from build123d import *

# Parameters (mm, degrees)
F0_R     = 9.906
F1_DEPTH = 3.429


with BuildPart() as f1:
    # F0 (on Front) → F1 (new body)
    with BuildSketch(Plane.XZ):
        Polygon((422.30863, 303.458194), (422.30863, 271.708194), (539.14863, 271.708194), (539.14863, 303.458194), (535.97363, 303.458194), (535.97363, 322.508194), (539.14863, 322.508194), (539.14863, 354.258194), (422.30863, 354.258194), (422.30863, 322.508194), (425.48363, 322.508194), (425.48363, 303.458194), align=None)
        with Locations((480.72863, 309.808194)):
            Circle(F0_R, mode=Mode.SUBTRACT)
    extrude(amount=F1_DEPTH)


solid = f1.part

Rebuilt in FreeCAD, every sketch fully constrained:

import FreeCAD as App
import Part
import Sketcher

V = App.Vector
Q = App.Units.Quantity

doc = App.newDocument("Part")
body = doc.addObject("PartDesign::Body", "Body")

# Sketch on XZ plane
sketch1 = body.newObject("Sketcher::SketchObject", "Sketch")
sketch1.AttachmentSupport = (doc.getObject("XZ_Plane"), [""])
sketch1.MapMode = "FlatFace"
sketch1.addGeometry([
    Part.LineSegment(V(422.30863, 303.458194, 0), V(422.30863, 271.708194, 0)),  # 0
    Part.LineSegment(V(422.30863, 271.708194, 0), V(539.14863, 271.708194, 0)),  # 1
    Part.LineSegment(V(539.14863, 271.708194, 0), V(539.14863, 303.458194, 0)),  # 2
    Part.LineSegment(V(539.14863, 303.458194, 0), V(535.97363, 303.458194, 0)),  # 3
    Part.LineSegment(V(535.97363, 303.458194, 0), V(535.97363, 322.508194, 0)),  # 4
    Part.LineSegment(V(535.97363, 322.508194, 0), V(539.14863, 322.508194, 0)),  # 5
    Part.LineSegment(V(539.14863, 322.508194, 0), V(539.14863, 354.258194, 0)),  # 6
    Part.LineSegment(V(539.14863, 354.258194, 0), V(422.30863, 354.258194, 0)),  # 7
    Part.LineSegment(V(422.30863, 354.258194, 0), V(422.30863, 322.508194, 0)),  # 8
    Part.LineSegment(V(422.30863, 322.508194, 0), V(425.48363, 322.508194, 0)),  # 9
    Part.LineSegment(V(425.48363, 322.508194, 0), V(425.48363, 303.458194, 0)),  # 10
    Part.LineSegment(V(425.48363, 303.458194, 0), V(422.30863, 303.458194, 0)),  # 11
    Part.Circle(V(480.72863, 309.808194, 0), V(0, 0, 1), 9.906),  # 12
], False)
sketch1.addConstraint([
    Sketcher.Constraint("Coincident", 0, 2, 1, 1),
    Sketcher.Constraint("Coincident", 1, 2, 2, 1),
    Sketcher.Constraint("Coincident", 2, 2, 3, 1),
    Sketcher.Constraint("Coincident", 3, 2, 4, 1),
    Sketcher.Constraint("Coincident", 4, 2, 5, 1),
    Sketcher.Constraint("Coincident", 5, 2, 6, 1),
    Sketcher.Constraint("Coincident", 6, 2, 7, 1),
    Sketcher.Constraint("Coincident", 7, 2, 8, 1),
    Sketcher.Constraint("Coincident", 8, 2, 9, 1),
    Sketcher.Constraint("Coincident", 9, 2, 10, 1),
    Sketcher.Constraint("Coincident", 10, 2, 11, 1),
    Sketcher.Constraint("Coincident", 11, 2, 0, 1),
    Sketcher.Constraint("Vertical", 0),
    Sketcher.Constraint("Horizontal", 1),
    Sketcher.Constraint("Vertical", 2),
    Sketcher.Constraint("Horizontal", 3),
    Sketcher.Constraint("Vertical", 4),
    Sketcher.Constraint("Horizontal", 5),
    Sketcher.Constraint("Vertical", 6),
    Sketcher.Constraint("Horizontal", 7),
    Sketcher.Constraint("Vertical", 8),
    Sketcher.Constraint("Horizontal", 9),
    Sketcher.Constraint("Vertical", 10),
    Sketcher.Constraint("Horizontal", 11),
    Sketcher.Constraint("Horizontal", 5, 2, 8, 2),
    Sketcher.Constraint("Horizontal", 3, 2, 10, 2),
    Sketcher.Constraint("Vertical", 2, 2, 5, 2),
    Sketcher.Constraint("Vertical", 0, 2, 7, 2),
    Sketcher.Constraint("Equal", 5, 9),
    Sketcher.Constraint("Equal", 2, 6),
    Sketcher.Constraint("Diameter", 12, Q("0.78 in")),
    Sketcher.Constraint("DistanceX", 1, 1, 1, 2, Q("4.6 in")),
    Sketcher.Constraint("DistanceY", 1, 2, 4, 2, Q("2 in")),
    Sketcher.Constraint("DistanceY", 0, 2, 0, 1, Q("1.25 in")),
    Sketcher.Constraint("DistanceX", 0, 2, 12, 3, Q("2.3 in")),
    Sketcher.Constraint("DistanceY", 0, 2, 12, 3, Q("1.5 in")),
    Sketcher.Constraint("DistanceX", 3, 2, 3, 1, Q("0.125 in")),
    Sketcher.Constraint("DistanceX", -1, 1, 12, 3, 480.72863),
    Sketcher.Constraint("DistanceY", -1, 1, 12, 3, 309.808194),
])
pad1 = body.newObject("PartDesign::Pad", "Pad")
pad1.Profile = sketch1
pad1.Length = Q("0.135 in")

doc.recompute()
